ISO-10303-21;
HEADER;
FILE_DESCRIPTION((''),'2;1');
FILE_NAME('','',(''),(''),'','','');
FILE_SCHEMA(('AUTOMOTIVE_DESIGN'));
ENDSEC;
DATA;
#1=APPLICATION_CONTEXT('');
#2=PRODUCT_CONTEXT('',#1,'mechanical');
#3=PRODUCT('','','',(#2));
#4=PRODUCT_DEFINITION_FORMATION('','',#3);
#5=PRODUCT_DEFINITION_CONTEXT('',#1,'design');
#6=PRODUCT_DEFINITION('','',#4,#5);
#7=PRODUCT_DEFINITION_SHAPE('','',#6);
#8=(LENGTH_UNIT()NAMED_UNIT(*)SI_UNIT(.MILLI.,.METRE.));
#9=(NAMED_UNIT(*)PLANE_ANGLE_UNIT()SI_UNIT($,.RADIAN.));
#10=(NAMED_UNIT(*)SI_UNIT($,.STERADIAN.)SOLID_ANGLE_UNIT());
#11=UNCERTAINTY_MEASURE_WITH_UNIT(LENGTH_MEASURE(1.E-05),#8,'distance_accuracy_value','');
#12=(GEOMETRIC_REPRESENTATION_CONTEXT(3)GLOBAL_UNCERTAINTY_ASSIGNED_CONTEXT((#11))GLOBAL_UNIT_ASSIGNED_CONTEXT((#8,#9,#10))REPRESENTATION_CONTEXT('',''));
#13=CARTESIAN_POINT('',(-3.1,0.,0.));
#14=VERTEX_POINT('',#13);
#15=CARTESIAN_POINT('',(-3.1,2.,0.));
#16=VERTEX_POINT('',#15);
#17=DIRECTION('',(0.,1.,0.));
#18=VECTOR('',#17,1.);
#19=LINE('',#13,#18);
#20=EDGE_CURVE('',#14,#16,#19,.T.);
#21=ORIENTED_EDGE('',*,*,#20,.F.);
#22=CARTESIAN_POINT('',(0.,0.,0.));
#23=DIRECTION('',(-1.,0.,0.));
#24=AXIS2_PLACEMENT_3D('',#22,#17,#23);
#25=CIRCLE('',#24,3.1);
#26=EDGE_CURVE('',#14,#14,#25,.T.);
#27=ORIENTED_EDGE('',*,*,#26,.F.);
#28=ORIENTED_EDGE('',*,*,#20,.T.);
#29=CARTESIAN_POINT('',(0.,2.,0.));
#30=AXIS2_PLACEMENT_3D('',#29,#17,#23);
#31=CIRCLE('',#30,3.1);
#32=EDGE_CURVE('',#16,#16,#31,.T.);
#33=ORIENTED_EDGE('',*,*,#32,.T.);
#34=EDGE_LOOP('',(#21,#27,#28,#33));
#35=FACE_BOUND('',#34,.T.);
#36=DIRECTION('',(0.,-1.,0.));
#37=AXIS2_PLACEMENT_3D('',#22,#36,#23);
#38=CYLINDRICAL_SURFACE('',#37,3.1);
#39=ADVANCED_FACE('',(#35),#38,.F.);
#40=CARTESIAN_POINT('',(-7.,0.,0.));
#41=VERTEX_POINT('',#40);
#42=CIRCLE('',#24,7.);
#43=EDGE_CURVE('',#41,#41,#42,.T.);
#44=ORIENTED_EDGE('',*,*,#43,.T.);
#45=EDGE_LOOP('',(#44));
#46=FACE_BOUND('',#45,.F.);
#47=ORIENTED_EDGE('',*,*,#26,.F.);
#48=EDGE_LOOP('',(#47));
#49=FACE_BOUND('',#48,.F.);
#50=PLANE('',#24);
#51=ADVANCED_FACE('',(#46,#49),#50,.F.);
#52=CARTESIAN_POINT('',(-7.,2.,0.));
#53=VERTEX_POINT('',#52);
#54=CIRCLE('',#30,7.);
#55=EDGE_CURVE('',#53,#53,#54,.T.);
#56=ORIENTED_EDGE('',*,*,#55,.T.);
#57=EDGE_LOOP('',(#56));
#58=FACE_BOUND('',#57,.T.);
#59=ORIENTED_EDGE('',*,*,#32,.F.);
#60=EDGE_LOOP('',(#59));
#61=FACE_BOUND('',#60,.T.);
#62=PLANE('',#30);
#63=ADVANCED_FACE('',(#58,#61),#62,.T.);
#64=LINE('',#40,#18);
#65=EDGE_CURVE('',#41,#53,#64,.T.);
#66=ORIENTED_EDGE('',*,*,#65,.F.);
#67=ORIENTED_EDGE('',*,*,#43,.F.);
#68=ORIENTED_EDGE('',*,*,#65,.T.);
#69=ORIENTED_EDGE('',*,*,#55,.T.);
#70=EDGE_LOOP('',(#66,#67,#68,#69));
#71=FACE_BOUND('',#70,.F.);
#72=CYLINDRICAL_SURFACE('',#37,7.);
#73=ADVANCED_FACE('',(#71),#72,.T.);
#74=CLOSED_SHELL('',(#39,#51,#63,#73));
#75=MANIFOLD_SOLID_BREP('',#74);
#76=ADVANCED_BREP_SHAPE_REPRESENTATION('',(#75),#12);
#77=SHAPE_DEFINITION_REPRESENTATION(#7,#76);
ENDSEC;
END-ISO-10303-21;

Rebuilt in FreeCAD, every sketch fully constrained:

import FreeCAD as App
import Part
import Sketcher

V = App.Vector

doc = App.newDocument("Part")
params = doc.addObject("Spreadsheet::Sheet", "Params")
for row, (alias, value) in enumerate([
    ("sketch1_diameter", "14 mm"),
    ("sketch1_diameter2", "6.2 mm"),
    ("pad1_length", "2 mm"),
], start=1):
    params.set(f"A{row}", alias)
    params.set(f"B{row}", "=" + value)
    params.setAlias(f"B{row}", alias)

body = doc.addObject("PartDesign::Body", "Body")

# Sketch on XZ plane
sketch1 = body.newObject("Sketcher::SketchObject", "Sketch")
sketch1.AttachmentSupport = (doc.getObject("XZ_Plane"), [""])
sketch1.MapMode = "FlatFace"
sketch1.addGeometry(Part.Circle(V(0, 0, 0), V(0, 0, 1), 7), False)
sketch1.addGeometry(Part.Circle(V(0, 0, 0), V(0, 0, 1), 3.1), False)
sketch1.addConstraint(Sketcher.Constraint("Coincident", 0, 3, -1, 1))
sketch1.addConstraint(Sketcher.Constraint("Coincident", 1, 3, -1, 1))
sketch1.addConstraint(Sketcher.Constraint("Diameter", 0, 14.0))
sketch1.addConstraint(Sketcher.Constraint("Diameter", 1, 6.2))
sketch1.setExpression("Constraints[2]", "Params.sketch1_diameter")
sketch1.setExpression("Constraints[3]", "Params.sketch1_diameter2")
pad1 = body.newObject("PartDesign::Pad", "Pad")
pad1.Profile = sketch1
pad1.setExpression("Length", "Params.pad1_length")
pad1.Reversed = True

doc.recompute()
